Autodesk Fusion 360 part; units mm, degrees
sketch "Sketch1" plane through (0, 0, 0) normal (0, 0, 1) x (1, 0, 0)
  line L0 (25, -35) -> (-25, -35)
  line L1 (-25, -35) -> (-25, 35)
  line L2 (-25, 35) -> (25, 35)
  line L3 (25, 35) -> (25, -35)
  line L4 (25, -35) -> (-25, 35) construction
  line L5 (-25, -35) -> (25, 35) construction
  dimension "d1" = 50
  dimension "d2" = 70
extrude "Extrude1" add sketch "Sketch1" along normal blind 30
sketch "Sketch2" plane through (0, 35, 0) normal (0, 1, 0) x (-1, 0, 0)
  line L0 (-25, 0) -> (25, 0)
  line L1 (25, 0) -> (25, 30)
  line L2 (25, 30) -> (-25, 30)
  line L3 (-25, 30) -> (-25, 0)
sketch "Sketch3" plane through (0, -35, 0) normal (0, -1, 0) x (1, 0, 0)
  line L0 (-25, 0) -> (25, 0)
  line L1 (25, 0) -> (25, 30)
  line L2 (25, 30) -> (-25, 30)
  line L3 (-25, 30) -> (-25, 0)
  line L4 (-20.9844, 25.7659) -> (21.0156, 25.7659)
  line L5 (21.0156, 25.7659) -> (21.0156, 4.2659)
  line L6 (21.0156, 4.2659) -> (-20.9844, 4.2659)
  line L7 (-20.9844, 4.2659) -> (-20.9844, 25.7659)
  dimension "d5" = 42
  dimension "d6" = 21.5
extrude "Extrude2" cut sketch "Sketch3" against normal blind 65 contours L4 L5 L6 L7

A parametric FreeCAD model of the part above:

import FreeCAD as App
import Part
import Sketcher
Q = App.Units.Quantity

doc = App.newDocument("Part")
body = doc.addObject("PartDesign::Body", "Body")

sketch1 = body.newObject("Sketcher::SketchObject", "Sketch")
sketch1.AttachmentSupport = (doc.getObject("XY_Plane"), [""])
sketch1.MapMode = "FlatFace"
sketch1.addGeometry([
    Part.LineSegment(App.Vector(-25, -35, 0), App.Vector(25, -35, 0)),
    Part.LineSegment(App.Vector(25, -35, 0), App.Vector(25, 35, 0)),
    Part.LineSegment(App.Vector(25, 35, 0), App.Vector(-25, 35, 0)),
    Part.LineSegment(App.Vector(-25, 35, 0), App.Vector(-25, -35, 0)),
], False)
sketch1.addConstraint([
    Sketcher.Constraint("Coincident", 0, 2, 1, 1),
    Sketcher.Constraint("Coincident", 1, 2, 2, 1),
    Sketcher.Constraint("Coincident", 2, 2, 3, 1),
    Sketcher.Constraint("Coincident", 3, 2, 0, 1),
    Sketcher.Constraint("Horizontal", 0),
    Sketcher.Constraint("Vertical", 1),
    Sketcher.Constraint("Horizontal", 2),
    Sketcher.Constraint("Vertical", 3),
    Sketcher.Constraint("Symmetric", 0, 2, 2, 2, -1, 1),
    Sketcher.Constraint("DistanceX", 0, 1, 0, 2, Q("50 mm")),
    Sketcher.Constraint("DistanceY", 1, 1, 1, 2, Q("70 mm")),
])
pad1 = body.newObject("PartDesign::Pad", "Pad")
pad1.Profile = sketch1
pad1.Length = 30

sketch2 = body.newObject("Sketcher::SketchObject", "Sketch001")
sketch2.AttachmentSupport = (doc.getObject("XZ_Plane"), [""])
sketch2.MapMode = "FlatFace"
sketch2.AttachmentOffset = App.Placement(App.Vector(0, 0, 35), App.Rotation())
sketch2.addGeometry([
    Part.LineSegment(App.Vector(21, 26, 0), App.Vector(-21, 26, 0)),
    Part.LineSegment(App.Vector(-21, 26, 0), App.Vector(-21, 4, 0)),
    Part.LineSegment(App.Vector(-21, 4, 0), App.Vector(21, 4, 0)),
    Part.LineSegment(App.Vector(21, 4, 0), App.Vector(21, 26, 0)),
], False)
sketch2.addConstraint([
    Sketcher.Constraint("Coincident", 0, 2, 1, 1),
    Sketcher.Constraint("Coincident", 1, 2, 2, 1),
    Sketcher.Constraint("Coincident", 2, 2, 3, 1),
    Sketcher.Constraint("Coincident", 3, 2, 0, 1),
    Sketcher.Constraint("Horizontal", 0),
    Sketcher.Constraint("Vertical", 1),
    Sketcher.Constraint("Horizontal", 2),
    Sketcher.Constraint("Vertical", 3),
    Sketcher.Constraint("DistanceX", 0, 2, 0, 1, Q("42 mm")),
    Sketcher.Constraint("DistanceY", 1, 2, 1, 1, Q("21.5 mm")),
    Sketcher.Constraint("DistanceY", -1, 1, 0, 2, Q("25.766 mm")),
    Sketcher.Constraint("DistanceX", 0, 2, -1, 1, Q("20.9844 mm")),
])
pocket1 = body.newObject("PartDesign::Pocket", "Pocket")
pocket1.Profile = sketch2
pocket1.Length = 65

doc.recompute()
